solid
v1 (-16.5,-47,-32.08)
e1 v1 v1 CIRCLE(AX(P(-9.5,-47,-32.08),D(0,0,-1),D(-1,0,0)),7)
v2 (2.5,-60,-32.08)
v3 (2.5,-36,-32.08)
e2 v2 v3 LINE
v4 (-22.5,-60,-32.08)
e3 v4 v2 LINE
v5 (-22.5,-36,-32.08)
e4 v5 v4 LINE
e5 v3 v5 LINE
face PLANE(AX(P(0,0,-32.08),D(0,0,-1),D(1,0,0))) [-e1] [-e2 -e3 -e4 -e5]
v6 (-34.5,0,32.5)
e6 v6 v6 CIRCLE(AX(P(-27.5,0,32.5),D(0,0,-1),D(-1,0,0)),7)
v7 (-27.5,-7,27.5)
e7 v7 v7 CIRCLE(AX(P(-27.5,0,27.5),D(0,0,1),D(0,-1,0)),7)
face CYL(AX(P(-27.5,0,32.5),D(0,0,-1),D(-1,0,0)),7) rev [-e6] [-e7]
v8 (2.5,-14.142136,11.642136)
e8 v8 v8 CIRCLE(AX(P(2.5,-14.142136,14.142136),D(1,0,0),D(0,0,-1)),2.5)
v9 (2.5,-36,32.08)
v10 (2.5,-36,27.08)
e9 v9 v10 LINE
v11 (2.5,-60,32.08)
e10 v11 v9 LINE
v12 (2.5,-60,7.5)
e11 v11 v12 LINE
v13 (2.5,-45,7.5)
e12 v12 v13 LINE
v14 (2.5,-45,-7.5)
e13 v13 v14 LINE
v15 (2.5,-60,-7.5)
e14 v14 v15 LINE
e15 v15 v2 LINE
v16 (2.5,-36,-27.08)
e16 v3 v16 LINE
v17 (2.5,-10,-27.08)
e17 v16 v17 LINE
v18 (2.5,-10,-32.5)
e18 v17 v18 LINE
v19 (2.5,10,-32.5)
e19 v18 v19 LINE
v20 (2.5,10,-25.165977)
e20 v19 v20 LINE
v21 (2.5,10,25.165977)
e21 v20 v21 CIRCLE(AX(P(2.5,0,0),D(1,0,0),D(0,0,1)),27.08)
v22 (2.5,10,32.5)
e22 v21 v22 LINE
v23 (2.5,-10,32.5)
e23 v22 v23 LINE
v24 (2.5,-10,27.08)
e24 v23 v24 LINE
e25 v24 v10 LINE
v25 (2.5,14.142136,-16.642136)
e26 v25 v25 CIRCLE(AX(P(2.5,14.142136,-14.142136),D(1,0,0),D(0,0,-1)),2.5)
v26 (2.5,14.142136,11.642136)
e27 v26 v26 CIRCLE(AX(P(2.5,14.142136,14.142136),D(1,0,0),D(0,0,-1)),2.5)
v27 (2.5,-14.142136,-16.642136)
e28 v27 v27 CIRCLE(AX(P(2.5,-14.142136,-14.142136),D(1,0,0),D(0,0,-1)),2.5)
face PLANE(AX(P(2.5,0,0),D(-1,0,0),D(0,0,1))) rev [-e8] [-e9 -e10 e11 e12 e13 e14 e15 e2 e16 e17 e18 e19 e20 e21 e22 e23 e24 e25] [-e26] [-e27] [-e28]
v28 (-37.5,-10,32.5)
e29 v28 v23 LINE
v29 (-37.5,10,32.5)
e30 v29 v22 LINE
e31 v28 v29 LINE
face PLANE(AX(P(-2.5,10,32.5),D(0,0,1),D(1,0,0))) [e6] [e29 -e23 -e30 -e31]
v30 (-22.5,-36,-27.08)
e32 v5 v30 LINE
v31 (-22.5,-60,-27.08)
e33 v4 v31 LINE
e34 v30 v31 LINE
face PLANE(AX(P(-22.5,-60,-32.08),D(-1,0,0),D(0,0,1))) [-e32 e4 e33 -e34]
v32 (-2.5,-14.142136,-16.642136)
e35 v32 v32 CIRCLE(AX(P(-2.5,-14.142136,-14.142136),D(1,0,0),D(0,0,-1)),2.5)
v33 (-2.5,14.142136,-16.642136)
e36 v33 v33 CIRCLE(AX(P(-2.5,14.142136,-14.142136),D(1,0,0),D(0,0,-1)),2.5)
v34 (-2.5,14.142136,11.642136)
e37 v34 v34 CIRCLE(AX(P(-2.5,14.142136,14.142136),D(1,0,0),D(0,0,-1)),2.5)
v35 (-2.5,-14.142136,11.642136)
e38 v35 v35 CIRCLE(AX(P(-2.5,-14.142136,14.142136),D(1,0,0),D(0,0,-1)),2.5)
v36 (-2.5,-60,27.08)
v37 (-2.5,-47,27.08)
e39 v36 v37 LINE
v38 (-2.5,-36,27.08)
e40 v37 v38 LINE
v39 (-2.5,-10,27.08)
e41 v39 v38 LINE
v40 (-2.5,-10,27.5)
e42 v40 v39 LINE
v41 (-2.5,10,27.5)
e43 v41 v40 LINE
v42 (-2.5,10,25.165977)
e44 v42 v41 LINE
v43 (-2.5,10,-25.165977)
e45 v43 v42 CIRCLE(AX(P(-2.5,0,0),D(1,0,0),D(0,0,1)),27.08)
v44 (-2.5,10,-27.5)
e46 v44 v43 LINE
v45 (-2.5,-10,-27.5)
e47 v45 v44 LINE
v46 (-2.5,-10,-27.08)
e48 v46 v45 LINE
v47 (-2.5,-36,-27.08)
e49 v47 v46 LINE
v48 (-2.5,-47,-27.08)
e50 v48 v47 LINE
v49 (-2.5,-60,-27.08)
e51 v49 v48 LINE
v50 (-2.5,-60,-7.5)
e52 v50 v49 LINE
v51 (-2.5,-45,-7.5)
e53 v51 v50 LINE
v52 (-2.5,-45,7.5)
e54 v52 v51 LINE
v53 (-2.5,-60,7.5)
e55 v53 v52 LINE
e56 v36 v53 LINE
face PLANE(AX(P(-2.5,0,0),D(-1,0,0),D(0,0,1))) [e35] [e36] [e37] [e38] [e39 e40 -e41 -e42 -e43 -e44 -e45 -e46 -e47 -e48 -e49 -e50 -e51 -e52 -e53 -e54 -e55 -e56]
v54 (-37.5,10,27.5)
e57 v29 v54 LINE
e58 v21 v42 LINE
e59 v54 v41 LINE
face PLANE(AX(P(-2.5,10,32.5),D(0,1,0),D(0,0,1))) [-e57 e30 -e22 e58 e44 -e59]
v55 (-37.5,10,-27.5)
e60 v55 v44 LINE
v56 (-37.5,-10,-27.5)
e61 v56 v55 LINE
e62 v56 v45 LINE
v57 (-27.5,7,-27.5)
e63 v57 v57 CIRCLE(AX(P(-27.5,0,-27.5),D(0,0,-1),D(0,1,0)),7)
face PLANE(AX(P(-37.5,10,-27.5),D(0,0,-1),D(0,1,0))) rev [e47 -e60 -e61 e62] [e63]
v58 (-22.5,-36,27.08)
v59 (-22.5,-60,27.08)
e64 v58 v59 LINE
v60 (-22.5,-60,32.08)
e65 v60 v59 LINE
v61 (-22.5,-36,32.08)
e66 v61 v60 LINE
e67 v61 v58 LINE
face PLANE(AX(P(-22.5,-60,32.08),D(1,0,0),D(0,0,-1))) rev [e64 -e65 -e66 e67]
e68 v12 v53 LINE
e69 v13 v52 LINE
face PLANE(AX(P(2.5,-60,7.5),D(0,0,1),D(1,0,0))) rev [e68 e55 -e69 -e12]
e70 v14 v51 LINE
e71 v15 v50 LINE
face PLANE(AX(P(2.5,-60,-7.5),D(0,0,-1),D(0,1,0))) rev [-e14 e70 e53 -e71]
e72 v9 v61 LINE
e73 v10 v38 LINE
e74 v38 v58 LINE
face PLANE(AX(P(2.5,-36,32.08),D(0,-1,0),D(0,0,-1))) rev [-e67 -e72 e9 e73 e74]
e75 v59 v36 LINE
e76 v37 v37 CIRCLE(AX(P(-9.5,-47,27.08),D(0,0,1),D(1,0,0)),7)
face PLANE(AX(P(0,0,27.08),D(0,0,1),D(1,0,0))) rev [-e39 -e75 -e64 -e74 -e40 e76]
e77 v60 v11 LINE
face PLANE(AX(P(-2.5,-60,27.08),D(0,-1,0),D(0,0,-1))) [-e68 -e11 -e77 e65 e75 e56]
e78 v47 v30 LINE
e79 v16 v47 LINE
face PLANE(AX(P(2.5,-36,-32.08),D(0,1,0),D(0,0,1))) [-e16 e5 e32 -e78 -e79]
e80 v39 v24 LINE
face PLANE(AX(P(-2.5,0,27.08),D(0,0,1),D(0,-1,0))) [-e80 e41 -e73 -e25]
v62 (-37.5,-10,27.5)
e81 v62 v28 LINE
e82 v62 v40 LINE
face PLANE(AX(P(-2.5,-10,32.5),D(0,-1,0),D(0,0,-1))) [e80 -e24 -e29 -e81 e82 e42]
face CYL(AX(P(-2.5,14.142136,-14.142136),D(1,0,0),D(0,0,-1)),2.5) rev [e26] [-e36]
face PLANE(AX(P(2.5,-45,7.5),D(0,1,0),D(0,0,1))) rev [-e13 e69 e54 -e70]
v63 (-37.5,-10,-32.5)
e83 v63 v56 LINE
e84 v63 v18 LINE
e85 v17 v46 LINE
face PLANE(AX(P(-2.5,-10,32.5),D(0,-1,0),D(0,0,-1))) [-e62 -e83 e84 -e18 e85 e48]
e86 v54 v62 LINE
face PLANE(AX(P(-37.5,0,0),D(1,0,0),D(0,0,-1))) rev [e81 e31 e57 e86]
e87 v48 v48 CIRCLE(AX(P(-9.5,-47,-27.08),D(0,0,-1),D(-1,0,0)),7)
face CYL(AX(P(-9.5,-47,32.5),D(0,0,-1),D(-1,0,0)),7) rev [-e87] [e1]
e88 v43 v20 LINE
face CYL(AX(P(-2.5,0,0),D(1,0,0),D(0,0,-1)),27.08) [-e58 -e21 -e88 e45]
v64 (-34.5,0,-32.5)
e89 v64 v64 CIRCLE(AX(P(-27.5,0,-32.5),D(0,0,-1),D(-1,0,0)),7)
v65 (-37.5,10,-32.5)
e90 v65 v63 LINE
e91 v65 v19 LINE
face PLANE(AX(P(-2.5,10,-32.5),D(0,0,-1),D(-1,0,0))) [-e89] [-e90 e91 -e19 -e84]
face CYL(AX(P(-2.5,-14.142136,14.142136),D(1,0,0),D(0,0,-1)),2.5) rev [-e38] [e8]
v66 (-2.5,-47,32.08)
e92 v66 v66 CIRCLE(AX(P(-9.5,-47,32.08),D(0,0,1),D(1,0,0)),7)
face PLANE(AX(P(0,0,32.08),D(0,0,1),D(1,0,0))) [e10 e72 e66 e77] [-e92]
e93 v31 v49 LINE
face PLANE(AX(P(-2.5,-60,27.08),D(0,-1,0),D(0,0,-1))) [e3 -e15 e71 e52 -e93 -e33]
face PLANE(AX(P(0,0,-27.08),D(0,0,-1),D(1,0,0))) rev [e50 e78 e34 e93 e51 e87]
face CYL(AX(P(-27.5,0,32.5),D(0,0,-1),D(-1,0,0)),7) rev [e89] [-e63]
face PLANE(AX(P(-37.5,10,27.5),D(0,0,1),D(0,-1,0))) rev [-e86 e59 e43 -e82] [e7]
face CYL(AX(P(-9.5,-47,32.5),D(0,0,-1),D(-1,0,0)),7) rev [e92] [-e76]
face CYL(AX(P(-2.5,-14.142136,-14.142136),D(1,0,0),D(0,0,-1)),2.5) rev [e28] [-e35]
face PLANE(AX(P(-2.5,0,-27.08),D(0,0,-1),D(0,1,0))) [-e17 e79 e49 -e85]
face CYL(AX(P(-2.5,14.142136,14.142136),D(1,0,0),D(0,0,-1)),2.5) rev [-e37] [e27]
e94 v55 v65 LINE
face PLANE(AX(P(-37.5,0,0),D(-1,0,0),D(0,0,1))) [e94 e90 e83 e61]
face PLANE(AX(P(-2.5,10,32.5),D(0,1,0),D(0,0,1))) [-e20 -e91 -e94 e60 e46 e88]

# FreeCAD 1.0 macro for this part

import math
import FreeCAD as App
import Part
import Sketcher
from FreeCAD import Vector
Q = App.Units.Quantity

doc = App.newDocument("Part")
body = doc.addObject("PartDesign::Body", "Body")

sketch1 = body.newObject("Sketcher::SketchObject", "Sketch")
sketch1.AttachmentSupport = (doc.getObject("YZ_Plane"), [""])
sketch1.MapMode = "FlatFace"
sketch1.addGeometry(Part.LineSegment(Vector(0, 27, 0), Vector(-60, 27, 0)), False)
sketch1.addGeometry(Part.LineSegment(Vector(-60, 27, 0), Vector(-60, -27, 0)), False)
sketch1.addGeometry(Part.LineSegment(Vector(-60, -27, 0), Vector(0, -27, 0)), False)
sketch1.addGeometry(Part.ArcOfCircle(Part.Circle(Vector(0, 0, 0), Vector(0, 0, 1), 27), math.radians(-90), math.radians(90)), False)
sketch1.addConstraint(Sketcher.Constraint("Coincident", 0, 2, 1, 1))
sketch1.addConstraint(Sketcher.Constraint("Coincident", 1, 2, 2, 1))
sketch1.addConstraint(Sketcher.Constraint("Tangent", 2, 2, 3, 1))
sketch1.addConstraint(Sketcher.Constraint("Tangent", 3, 2, 0, 1))
sketch1.addConstraint(Sketcher.Constraint("Horizontal", 0))
sketch1.addConstraint(Sketcher.Constraint("Vertical", 1))
sketch1.addConstraint(Sketcher.Constraint("Horizontal", 2))
sketch1.addConstraint(Sketcher.Constraint("Coincident", 3, 3, -1, 1))
sketch1.addConstraint(Sketcher.Constraint("DistanceX", 0, 2, 0, 1, Q("60 mm")))
sketch1.addConstraint(Sketcher.Constraint("Radius", 3, Q("27.08 mm")))
pad1 = body.newObject("PartDesign::Pad", "Pad")
pad1.Profile = sketch1
pad1.Type = "TwoLengths"
pad1.Length = 2.5
pad1.Length2 = 2.5

sketch2 = body.newObject("Sketcher::SketchObject", "Sketch001")
sketch2.AttachmentSupport = (doc.getObject("YZ_Plane"), [""])
sketch2.MapMode = "FlatFace"
sketch2.AttachmentOffset = App.Placement(Vector(0, 0, 2.5), App.Rotation())
sketch2.addGeometry(Part.Circle(Vector(14.1, 14.1, 0), Vector(0, 0, 1), 2.5), False)
sketch2.addGeometry(Part.Circle(Vector(14.1, -14.1, 0), Vector(0, 0, 1), 2.5), False)
sketch2.addGeometry(Part.Circle(Vector(-14.1, -14.1, 0), Vector(0, 0, 1), 2.5), False)
sketch2.addGeometry(Part.Circle(Vector(-14.1, 14.1, 0), Vector(0, 0, 1), 2.5), False)
sketch2.addConstraint(Sketcher.Constraint("Equal", 0, 1))
sketch2.addConstraint(Sketcher.Constraint("Equal", 1, 2))
sketch2.addConstraint(Sketcher.Constraint("Equal", 2, 3))
sketch2.addConstraint(Sketcher.Constraint("Symmetric", 0, 3, 2, 3, -1, 1))
sketch2.addConstraint(Sketcher.Constraint("Symmetric", 1, 3, 3, 3, -1, 1))
sketch2.addConstraint(Sketcher.Constraint("Symmetric", 1, 3, 2, 3, -2))
sketch2.addConstraint(Sketcher.Constraint("Diameter", 0, Q("5 mm")))
sketch2.addConstraint(Sketcher.Constraint("DistanceY", 1, 3, 0, 3, Q("28.284271 mm")))
sketch2.addConstraint(Sketcher.Constraint("DistanceX", 2, 3, 1, 3, Q("28.284271 mm")))
pocket1 = body.newObject("PartDesign::Pocket", "Pocket")
pocket1.Profile = sketch2
pocket1.Type = "ThroughAll"

sketch3 = body.newObject("Sketcher::SketchObject", "Sketch002")
sketch3.AttachmentSupport = (doc.getObject("YZ_Plane"), [""])
sketch3.MapMode = "FlatFace"
sketch3.addGeometry(Part.LineSegment(Vector(10, 32, 0), Vector(-10, 32, 0)), False)
sketch3.addGeometry(Part.LineSegment(Vector(-10, 32, 0), Vector(-10, -32, 0)), False)
sketch3.addGeometry(Part.LineSegment(Vector(-10, -32, 0), Vector(10, -32, 0)), False)
sketch3.addGeometry(Part.LineSegment(Vector(10, -32, 0), Vector(10, 32, 0)), False)
sketch3.addConstraint(Sketcher.Constraint("Coincident", 0, 2, 1, 1))
sketch3.addConstraint(Sketcher.Constraint("Coincident", 1, 2, 2, 1))
sketch3.addConstraint(Sketcher.Constraint("Coincident", 2, 2, 3, 1))
sketch3.addConstraint(Sketcher.Constraint("Coincident", 3, 2, 0, 1))
sketch3.addConstraint(Sketcher.Constraint("Horizontal", 0))
sketch3.addConstraint(Sketcher.Constraint("Vertical", 1))
sketch3.addConstraint(Sketcher.Constraint("Horizontal", 2))
sketch3.addConstraint(Sketcher.Constraint("Vertical", 3))
sketch3.addConstraint(Sketcher.Constraint("Symmetric", 0, 2, 2, 2, -1, 1))
sketch3.addConstraint(Sketcher.Constraint("DistanceX", 0, 2, 0, 1, Q("20 mm")))
sketch3.addConstraint(Sketcher.Constraint("DistanceY", 1, 2, 1, 1, Q("65 mm")))
pad2 = body.newObject("PartDesign::Pad", "Pad001")
pad2.Profile = sketch3
pad2.Type = "TwoLengths"
pad2.Length = 2.5
pad2.Length2 = 2.5

sketch4 = body.newObject("Sketcher::SketchObject", "Sketch003")
sketch4.AttachmentSupport = (doc.getObject("YZ_Plane"), [""])
sketch4.MapMode = "FlatFace"
sketch4.AttachmentOffset = App.Placement(Vector(0, 0, -2.5), App.Rotation())
sketch4.addGeometry(Part.LineSegment(Vector(10, -32, 0), Vector(-10, -32, 0)), False)
sketch4.addGeometry(Part.LineSegment(Vector(-10, -32, 0), Vector(-10, -28, 0)), False)
sketch4.addGeometry(Part.LineSegment(Vector(-10, -28, 0), Vector(10, -28, 0)), False)
sketch4.addGeometry(Part.LineSegment(Vector(10, -28, 0), Vector(10, -32, 0)), False)
sketch4.addGeometry(Part.LineSegment(Vector(10, 28, 0), Vector(-10, 28, 0)), False)
sketch4.addGeometry(Part.LineSegment(Vector(-10, 28, 0), Vector(-10, 32, 0)), False)
sketch4.addGeometry(Part.LineSegment(Vector(-10, 32, 0), Vector(10, 32, 0)), False)
sketch4.addGeometry(Part.LineSegment(Vector(10, 32, 0), Vector(10, 28, 0)), False)
sketch4.addConstraint(Sketcher.Constraint("Coincident", 0, 2, 1, 1))
sketch4.addConstraint(Sketcher.Constraint("Coincident", 1, 2, 2, 1))
sketch4.addConstraint(Sketcher.Constraint("Coincident", 2, 2, 3, 1))
sketch4.addConstraint(Sketcher.Constraint("Coincident", 3, 2, 0, 1))
sketch4.addConstraint(Sketcher.Constraint("Coincident", 4, 2, 5, 1))
sketch4.addConstraint(Sketcher.Constraint("Coincident", 5, 2, 6, 1))
sketch4.addConstraint(Sketcher.Constraint("Coincident", 6, 2, 7, 1))
sketch4.addConstraint(Sketcher.Constraint("Coincident", 7, 2, 4, 1))
sketch4.addConstraint(Sketcher.Constraint("Horizontal", 0))
sketch4.addConstraint(Sketcher.Constraint("Vertical", 1))
sketch4.addConstraint(Sketcher.Constraint("Horizontal", 2))
sketch4.addConstraint(Sketcher.Constraint("Vertical", 3))
sketch4.addConstraint(Sketcher.Constraint("Horizontal", 4))
sketch4.addConstraint(Sketcher.Constraint("Vertical", 5))
sketch4.addConstraint(Sketcher.Constraint("Horizontal", 6))
sketch4.addConstraint(Sketcher.Constraint("Vertical", 7))
sketch4.addConstraint(Sketcher.Constraint("Symmetric", 2, 2, 4, 2, -1, 1))
sketch4.addConstraint(Sketcher.Constraint("Symmetric", 0, 2, 6, 2, -1, 1))
sketch4.addConstraint(Sketcher.Constraint("Vertical", 1, 2, 4, 2))
sketch4.addConstraint(Sketcher.Constraint("DistanceX", 0, 2, 0, 1, Q("20 mm")))
sketch4.addConstraint(Sketcher.Constraint("DistanceY", 1, 1, 1, 2, Q("5 mm")))
sketch4.addConstraint(Sketcher.Constraint("DistanceY", 1, 2, 4, 2, Q("55 mm")))
pad3 = body.newObject("PartDesign::Pad", "Pad002")
pad3.Profile = sketch4
pad3.Length = 35
pad3.Reversed = True

sketch5 = body.newObject("Sketcher::SketchObject", "Sketch004")
sketch5.AttachmentSupport = (doc.getObject("XY_Plane"), [""])
sketch5.MapMode = "FlatFace"
sketch5.AttachmentOffset = App.Placement(Vector(0, 0, -32.5), App.Rotation())
sketch5.addGeometry(Part.Circle(Vector(-28, 0, 0), Vector(0, 0, 1), 7), False)
sketch5.addConstraint(Sketcher.Constraint("PointOnObject", 0, 3, -1))
sketch5.addConstraint(Sketcher.Constraint("Diameter", 0, Q("14 mm")))
sketch5.addConstraint(Sketcher.Constraint("DistanceX", 0, 3, -1, 1, Q("27.5 mm")))
pocket2 = body.newObject("PartDesign::Pocket", "Pocket001")
pocket2.Profile = sketch5
pocket2.Type = "ThroughAll"
pocket2.Reversed = True

sketch6 = body.newObject("Sketcher::SketchObject", "Sketch005")
sketch6.AttachmentSupport = (doc.getObject("YZ_Plane"), [""])
sketch6.MapMode = "FlatFace"
sketch6.AttachmentOffset = App.Placement(Vector(0, 0, -2.5), App.Rotation())
sketch6.addGeometry(Part.LineSegment(Vector(-45, -8, 0), Vector(-60, -8, 0)), False)
sketch6.addGeometry(Part.LineSegment(Vector(-60, -8, 0), Vector(-60, 8, 0)), False)
sketch6.addGeometry(Part.LineSegment(Vector(-60, 8, 0), Vector(-45, 8, 0)), False)
sketch6.addGeometry(Part.LineSegment(Vector(-45, 8, 0), Vector(-45, -8, 0)), False)
sketch6.addConstraint(Sketcher.Constraint("Coincident", 0, 2, 1, 1))
sketch6.addConstraint(Sketcher.Constraint("Coincident", 1, 2, 2, 1))
sketch6.addConstraint(Sketcher.Constraint("Coincident", 2, 2, 3, 1))
sketch6.addConstraint(Sketcher.Constraint("Coincident", 3, 2, 0, 1))
sketch6.addConstraint(Sketcher.Constraint("Horizontal", 0))
sketch6.addConstraint(Sketcher.Constraint("Vertical", 1))
sketch6.addConstraint(Sketcher.Constraint("Horizontal", 2))
sketch6.addConstraint(Sketcher.Constraint("Vertical", 3))
sketch6.addConstraint(Sketcher.Constraint("Equal", 2, 1))
sketch6.addConstraint(Sketcher.Constraint("DistanceX", 0, 2, 0, 1, Q("15 mm")))
sketch6.addConstraint(Sketcher.Constraint("DistanceX", 0, 2, -1, 1, Q("60 mm")))
sketch6.addConstraint(Sketcher.Constraint("DistanceY", 0, 2, -1, 1, Q("7.5 mm")))
pocket3 = body.newObject("PartDesign::Pocket", "Pocket002")
pocket3.Profile = sketch6
pocket3.Type = "ThroughAll"
pocket3.Reversed = True

sketch7 = body.newObject("Sketcher::SketchObject", "Sketch006")
sketch7.AttachmentSupport = (doc.getObject("XY_Plane"), [""])
sketch7.MapMode = "FlatFace"
sketch7.AttachmentOffset = App.Placement(Vector(0, 0, 27.08), App.Rotation())
sketch7.addGeometry(Part.LineSegment(Vector(-22, -36, 0), Vector(-22, -60, 0)), False)
sketch7.addGeometry(Part.LineSegment(Vector(-22, -60, 0), Vector(2, -60, 0)), False)
sketch7.addGeometry(Part.LineSegment(Vector(2, -60, 0), Vector(2, -36, 0)), False)
sketch7.addGeometry(Part.LineSegment(Vector(2, -36, 0), Vector(-22, -36, 0)), False)
sketch7.addConstraint(Sketcher.Constraint("Coincident", 0, 2, 1, 1))
sketch7.addConstraint(Sketcher.Constraint("Coincident", 1, 2, 2, 1))
sketch7.addConstraint(Sketcher.Constraint("Coincident", 2, 2, 3, 1))
sketch7.addConstraint(Sketcher.Constraint("Coincident", 3, 2, 0, 1))
sketch7.addConstraint(Sketcher.Constraint("Vertical", 0))
sketch7.addConstraint(Sketcher.Constraint("Horizontal", 1))
sketch7.addConstraint(Sketcher.Constraint("Vertical", 2))
sketch7.addConstraint(Sketcher.Constraint("Horizontal", 3))
sketch7.addConstraint(Sketcher.Constraint("DistanceX", 1, 1, 1, 2, Q("25 mm")))
sketch7.addConstraint(Sketcher.Constraint("DistanceY", 0, 2, 0, 1, Q("24 mm")))
sketch7.addConstraint(Sketcher.Constraint("DistanceY", 0, 2, -1, 1, Q("60 mm")))
sketch7.addConstraint(Sketcher.Constraint("DistanceX", 0, 2, -1, 1, Q("22.5 mm")))
pad4 = body.newObject("PartDesign::Pad", "Pad003")
pad4.Profile = sketch7
pad4.Length = 5
doc.recompute()

mirrored = body.newObject("PartDesign::Mirrored", "Mirrored")
mirrored.Originals = [pad4]
mirrored.MirrorPlane = (doc.getObject("XY_Plane"), [""])
body.Tip = mirrored

sketch8 = body.newObject("Sketcher::SketchObject", "Sketch007")
sketch8.AttachmentSupport = (doc.getObject("XY_Plane"), [""])
sketch8.MapMode = "FlatFace"
sketch8.AttachmentOffset = App.Placement(Vector(0, 0, 27.08), App.Rotation())
sketch8.addGeometry(Part.Circle(Vector(-10, -47, 0), Vector(0, 0, 1), 7), False)
sketch8.addConstraint(Sketcher.Constraint("Diameter", 0, Q("14 mm")))
sketch8.addConstraint(Sketcher.Constraint("DistanceY", 0, 3, -1, 1, Q("47 mm")))
sketch8.addConstraint(Sketcher.Constraint("DistanceX", 0, 3, -1, 1, Q("9.5 mm")))
pocket4 = body.newObject("PartDesign::Pocket", "Pocket003")
pocket4.Profile = sketch8
pocket4.Type = "ThroughAll"
pocket4.Midplane = True

doc.recompute()
